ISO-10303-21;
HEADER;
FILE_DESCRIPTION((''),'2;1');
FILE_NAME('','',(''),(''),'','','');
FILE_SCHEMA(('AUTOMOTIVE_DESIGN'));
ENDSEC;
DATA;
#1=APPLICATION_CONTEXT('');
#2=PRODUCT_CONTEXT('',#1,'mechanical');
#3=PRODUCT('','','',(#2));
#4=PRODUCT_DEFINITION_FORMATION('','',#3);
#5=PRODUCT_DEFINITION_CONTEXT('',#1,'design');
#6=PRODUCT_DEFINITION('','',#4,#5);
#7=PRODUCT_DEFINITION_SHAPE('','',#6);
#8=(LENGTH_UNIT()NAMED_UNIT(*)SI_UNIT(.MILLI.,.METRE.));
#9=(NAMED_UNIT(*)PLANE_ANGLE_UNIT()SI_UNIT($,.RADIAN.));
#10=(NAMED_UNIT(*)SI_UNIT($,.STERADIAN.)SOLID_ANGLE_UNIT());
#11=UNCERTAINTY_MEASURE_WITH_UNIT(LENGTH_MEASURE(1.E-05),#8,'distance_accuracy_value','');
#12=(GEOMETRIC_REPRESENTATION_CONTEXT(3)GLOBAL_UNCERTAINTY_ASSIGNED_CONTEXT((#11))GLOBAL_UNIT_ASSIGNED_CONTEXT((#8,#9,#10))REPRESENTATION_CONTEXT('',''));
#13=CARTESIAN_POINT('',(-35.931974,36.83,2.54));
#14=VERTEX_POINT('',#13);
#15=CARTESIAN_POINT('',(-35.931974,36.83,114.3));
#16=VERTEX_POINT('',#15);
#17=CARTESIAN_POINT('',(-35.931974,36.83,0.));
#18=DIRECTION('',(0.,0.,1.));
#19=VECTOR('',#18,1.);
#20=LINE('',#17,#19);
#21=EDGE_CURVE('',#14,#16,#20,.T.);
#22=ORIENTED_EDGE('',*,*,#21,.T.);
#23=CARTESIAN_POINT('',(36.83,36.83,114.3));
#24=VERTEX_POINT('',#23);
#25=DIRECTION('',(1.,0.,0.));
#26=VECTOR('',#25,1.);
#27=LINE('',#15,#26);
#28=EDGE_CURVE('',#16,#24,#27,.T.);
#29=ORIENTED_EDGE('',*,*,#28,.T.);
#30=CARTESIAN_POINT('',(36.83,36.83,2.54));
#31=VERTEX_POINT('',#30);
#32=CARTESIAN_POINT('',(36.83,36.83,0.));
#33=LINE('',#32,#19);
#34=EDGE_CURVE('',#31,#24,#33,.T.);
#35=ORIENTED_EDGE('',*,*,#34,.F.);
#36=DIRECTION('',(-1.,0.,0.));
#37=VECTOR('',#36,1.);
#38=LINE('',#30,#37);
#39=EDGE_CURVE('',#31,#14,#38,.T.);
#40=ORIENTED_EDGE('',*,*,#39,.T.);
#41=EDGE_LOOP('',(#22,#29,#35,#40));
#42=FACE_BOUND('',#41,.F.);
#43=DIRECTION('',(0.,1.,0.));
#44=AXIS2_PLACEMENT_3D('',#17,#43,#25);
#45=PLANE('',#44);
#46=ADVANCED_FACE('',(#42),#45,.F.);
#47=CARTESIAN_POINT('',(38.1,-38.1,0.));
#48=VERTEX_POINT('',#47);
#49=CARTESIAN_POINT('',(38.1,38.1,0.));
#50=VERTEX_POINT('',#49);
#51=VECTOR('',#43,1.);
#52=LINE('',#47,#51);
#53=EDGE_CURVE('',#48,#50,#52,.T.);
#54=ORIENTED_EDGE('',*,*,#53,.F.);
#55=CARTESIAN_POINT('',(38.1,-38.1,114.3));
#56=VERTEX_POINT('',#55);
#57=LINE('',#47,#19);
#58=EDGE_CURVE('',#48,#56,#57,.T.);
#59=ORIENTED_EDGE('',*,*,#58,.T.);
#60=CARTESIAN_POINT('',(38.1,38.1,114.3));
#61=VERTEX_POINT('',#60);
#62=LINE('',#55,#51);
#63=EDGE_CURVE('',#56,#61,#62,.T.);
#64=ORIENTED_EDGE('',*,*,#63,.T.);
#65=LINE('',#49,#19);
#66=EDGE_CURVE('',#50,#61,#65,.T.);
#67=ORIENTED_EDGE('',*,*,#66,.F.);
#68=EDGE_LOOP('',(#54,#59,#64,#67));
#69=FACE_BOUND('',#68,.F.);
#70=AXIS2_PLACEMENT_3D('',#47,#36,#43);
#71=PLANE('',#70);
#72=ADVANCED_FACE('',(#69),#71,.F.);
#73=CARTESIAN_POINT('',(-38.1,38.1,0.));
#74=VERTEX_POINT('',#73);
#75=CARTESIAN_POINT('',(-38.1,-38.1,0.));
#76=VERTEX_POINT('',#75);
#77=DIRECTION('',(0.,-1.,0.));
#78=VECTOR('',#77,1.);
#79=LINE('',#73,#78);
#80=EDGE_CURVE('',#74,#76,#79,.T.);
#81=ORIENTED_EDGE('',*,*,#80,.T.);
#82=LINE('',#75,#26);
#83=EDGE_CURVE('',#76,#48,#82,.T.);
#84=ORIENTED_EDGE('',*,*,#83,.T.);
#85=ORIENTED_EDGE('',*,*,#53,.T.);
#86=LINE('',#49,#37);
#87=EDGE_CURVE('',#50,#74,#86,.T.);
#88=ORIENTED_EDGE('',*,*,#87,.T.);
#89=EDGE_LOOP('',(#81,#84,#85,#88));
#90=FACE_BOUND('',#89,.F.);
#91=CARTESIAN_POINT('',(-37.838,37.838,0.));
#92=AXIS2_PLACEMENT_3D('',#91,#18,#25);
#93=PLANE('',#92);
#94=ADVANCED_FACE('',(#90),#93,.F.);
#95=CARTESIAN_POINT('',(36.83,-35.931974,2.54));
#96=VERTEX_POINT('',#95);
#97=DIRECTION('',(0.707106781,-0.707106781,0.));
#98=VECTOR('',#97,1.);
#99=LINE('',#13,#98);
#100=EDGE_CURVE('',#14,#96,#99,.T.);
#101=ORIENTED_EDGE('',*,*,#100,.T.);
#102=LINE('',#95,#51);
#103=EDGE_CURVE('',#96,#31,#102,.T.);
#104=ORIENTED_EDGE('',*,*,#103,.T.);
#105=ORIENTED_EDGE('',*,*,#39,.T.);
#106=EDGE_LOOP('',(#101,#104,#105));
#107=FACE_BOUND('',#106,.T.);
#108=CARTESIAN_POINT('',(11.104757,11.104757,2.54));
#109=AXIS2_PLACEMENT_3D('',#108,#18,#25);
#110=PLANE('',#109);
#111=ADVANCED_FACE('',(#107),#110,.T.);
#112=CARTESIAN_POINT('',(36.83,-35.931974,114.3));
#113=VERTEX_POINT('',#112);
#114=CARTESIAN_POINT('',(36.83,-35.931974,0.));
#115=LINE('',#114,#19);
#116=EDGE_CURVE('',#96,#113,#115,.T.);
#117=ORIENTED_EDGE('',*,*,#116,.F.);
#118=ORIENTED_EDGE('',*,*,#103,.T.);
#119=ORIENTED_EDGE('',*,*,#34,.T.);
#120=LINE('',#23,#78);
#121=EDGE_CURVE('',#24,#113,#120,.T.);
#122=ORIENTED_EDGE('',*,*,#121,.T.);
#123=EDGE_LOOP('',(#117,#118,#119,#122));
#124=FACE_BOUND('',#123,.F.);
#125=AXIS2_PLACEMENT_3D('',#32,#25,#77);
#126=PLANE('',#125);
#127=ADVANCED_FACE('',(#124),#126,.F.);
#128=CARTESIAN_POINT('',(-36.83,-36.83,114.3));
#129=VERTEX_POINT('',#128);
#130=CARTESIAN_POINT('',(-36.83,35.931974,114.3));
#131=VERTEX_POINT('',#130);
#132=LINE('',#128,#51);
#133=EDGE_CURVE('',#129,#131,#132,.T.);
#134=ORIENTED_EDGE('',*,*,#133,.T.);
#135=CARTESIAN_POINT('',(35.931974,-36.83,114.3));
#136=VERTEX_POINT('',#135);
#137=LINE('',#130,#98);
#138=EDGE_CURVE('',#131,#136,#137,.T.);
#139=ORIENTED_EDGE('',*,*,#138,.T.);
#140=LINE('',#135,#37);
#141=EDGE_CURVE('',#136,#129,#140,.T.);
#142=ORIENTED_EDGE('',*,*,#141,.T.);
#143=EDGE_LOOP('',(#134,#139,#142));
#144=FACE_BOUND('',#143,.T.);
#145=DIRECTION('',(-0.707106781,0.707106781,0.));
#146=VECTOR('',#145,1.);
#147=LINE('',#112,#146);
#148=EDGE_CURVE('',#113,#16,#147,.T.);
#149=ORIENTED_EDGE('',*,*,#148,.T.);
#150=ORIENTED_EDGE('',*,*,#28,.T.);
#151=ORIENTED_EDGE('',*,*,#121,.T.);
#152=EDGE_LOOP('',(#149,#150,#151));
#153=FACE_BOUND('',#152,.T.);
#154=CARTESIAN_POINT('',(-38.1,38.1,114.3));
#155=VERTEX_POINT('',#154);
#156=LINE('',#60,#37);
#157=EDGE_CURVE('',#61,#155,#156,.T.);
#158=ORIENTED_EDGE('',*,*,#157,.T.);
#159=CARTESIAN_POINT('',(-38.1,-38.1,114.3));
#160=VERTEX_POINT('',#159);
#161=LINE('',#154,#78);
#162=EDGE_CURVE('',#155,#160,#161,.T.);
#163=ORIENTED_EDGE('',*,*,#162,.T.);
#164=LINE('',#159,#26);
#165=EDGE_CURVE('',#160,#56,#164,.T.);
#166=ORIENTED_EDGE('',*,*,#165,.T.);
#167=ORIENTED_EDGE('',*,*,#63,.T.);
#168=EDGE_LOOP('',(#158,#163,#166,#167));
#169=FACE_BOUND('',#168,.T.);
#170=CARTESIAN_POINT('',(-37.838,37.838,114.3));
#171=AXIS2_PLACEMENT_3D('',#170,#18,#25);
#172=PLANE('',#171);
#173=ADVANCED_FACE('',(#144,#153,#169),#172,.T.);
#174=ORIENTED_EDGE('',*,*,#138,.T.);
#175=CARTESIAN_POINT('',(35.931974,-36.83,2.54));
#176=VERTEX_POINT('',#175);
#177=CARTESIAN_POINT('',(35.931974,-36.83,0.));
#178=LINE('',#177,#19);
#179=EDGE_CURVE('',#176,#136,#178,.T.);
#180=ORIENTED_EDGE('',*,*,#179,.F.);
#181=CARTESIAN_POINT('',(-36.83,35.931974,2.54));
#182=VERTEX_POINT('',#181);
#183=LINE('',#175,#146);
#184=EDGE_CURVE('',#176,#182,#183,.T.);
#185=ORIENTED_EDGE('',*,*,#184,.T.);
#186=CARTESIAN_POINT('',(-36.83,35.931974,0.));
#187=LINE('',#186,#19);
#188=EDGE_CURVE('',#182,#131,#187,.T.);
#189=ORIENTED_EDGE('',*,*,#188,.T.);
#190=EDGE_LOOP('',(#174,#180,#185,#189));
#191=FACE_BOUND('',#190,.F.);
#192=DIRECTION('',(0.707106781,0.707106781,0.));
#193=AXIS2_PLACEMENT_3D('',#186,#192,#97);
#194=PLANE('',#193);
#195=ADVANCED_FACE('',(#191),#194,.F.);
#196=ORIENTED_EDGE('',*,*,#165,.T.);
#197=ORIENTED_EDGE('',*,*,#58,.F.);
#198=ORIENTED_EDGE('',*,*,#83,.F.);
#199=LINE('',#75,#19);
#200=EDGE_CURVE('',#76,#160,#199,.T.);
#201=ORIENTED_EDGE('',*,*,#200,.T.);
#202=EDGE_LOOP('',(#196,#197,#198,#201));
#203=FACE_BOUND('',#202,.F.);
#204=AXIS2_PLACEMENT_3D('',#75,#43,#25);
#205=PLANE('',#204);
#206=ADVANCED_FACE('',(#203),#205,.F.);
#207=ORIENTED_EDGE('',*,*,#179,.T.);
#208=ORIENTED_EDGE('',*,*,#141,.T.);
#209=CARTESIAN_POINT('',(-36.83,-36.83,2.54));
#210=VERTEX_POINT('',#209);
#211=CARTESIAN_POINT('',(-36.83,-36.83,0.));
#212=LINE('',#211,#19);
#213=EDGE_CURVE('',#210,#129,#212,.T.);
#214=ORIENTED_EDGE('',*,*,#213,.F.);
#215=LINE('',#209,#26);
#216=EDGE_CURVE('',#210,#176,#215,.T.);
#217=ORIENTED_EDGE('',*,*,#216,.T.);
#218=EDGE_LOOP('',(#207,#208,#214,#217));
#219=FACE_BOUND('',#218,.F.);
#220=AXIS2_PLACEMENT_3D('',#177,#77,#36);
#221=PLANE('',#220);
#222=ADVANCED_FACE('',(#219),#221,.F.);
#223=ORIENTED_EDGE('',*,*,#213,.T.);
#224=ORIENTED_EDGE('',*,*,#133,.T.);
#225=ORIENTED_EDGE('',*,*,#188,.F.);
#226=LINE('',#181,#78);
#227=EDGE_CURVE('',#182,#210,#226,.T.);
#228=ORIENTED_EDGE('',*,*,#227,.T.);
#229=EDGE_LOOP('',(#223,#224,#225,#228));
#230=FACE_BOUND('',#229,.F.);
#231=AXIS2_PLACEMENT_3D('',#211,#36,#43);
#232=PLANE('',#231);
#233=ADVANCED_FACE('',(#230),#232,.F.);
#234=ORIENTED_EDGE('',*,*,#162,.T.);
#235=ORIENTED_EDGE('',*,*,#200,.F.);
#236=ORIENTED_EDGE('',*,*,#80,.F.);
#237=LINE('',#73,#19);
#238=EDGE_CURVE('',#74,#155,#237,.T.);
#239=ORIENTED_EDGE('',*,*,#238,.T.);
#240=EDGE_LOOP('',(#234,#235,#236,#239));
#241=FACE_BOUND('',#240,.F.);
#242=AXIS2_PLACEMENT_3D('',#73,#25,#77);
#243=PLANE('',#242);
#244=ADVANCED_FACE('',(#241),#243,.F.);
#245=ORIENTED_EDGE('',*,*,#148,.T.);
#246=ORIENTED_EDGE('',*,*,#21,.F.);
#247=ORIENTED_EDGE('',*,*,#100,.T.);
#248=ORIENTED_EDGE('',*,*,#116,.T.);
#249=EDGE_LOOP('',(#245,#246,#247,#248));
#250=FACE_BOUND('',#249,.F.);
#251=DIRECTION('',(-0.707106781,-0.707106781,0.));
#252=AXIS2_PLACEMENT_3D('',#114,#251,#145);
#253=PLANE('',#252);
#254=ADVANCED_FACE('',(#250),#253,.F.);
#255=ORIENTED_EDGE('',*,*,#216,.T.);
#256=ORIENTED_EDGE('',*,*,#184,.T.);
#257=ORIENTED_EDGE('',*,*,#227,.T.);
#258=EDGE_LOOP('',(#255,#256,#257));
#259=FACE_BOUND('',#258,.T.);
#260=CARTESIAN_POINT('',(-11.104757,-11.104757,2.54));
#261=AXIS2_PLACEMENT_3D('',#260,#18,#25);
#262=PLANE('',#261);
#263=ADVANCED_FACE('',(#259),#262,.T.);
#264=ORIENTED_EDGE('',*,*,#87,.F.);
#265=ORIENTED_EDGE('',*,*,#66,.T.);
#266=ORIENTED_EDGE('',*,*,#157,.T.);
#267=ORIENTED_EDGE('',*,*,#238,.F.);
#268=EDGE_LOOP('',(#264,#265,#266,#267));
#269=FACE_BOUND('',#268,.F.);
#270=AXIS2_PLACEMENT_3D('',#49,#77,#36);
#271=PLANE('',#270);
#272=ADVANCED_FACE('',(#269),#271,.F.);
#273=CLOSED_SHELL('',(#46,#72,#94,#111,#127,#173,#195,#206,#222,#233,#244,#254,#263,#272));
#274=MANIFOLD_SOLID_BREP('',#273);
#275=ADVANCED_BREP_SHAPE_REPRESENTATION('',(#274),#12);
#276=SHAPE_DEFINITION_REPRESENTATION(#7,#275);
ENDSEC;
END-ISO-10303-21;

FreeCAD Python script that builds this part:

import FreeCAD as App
import Part
import Sketcher

V = App.Vector
Q = App.Units.Quantity


def add_polygon(sketch, points):
    """Adds a closed chain of lines whose ends are joined by coincident constraints."""
    first, n = sketch.GeometryCount, len(points)
    for a, b in zip(points, points[1:] + points[:1]):
        sketch.addGeometry(Part.LineSegment(App.Vector(*a, 0), App.Vector(*b, 0)), False)
    for i in range(n):
        sketch.addConstraint(Sketcher.Constraint("Coincident", first + i, 2, first + (i + 1) % n, 1))

doc = App.newDocument("Part")
params = doc.addObject("Spreadsheet::Sheet", "Params")
for row, (alias, value) in enumerate([
    ("pad1_length", "0.1 in"),
    ("pad2_length", "0.1 in"),
    ("sketch3_width", "3 in"),
    ("pad3_length", "4.5 in"),
], start=1):
    params.set(f"A{row}", alias)
    params.set(f"B{row}", "=" + value)
    params.setAlias(f"B{row}", alias)

body = doc.addObject("PartDesign::Body", "Body")

# Sketch on XY plane
sketch1 = doc.addObject("Sketcher::SketchObject", "Sketch")
body.addObject(sketch1)
sketch1.AttachmentSupport = (doc.XY_Plane, [""])
sketch1.MapMode = "FlatFace"
add_polygon(sketch1, [(35.931974, -36.83), (-36.83, 35.931974), (-36.83, -36.83)])  # lines 0-2
sketch1.addConstraint([
    Sketcher.Constraint("Vertical", 1),
    Sketcher.Constraint("Horizontal", 2),
    Sketcher.Constraint("Equal", 2, 1),
    Sketcher.Constraint("DistanceX", 0, 2, -1, 1, Q("1.45 in")),
    Sketcher.Constraint("DistanceY", 1, 2, -1, 1, Q("1.45 in")),
    Sketcher.Constraint("Distance", 0, 102.900971),
])
pad1 = doc.addObject("PartDesign::Pad", "Pad")
body.addObject(pad1)
pad1.Profile = sketch1
pad1.setExpression("Length", "Params.pad1_length")
body2 = doc.addObject("PartDesign::Body", "Body001")

# Sketch on XY plane
sketch2 = doc.addObject("Sketcher::SketchObject", "Sketch001")
body2.addObject(sketch2)
sketch2.AttachmentSupport = (doc.getObject("XY_Plane001"), [""])
sketch2.MapMode = "FlatFace"
add_polygon(sketch2, [(36.83, 36.83), (-35.931974, 36.83), (36.83, -35.931974)])  # lines 0-2
sketch2.addConstraint([
    Sketcher.Constraint("Horizontal", 0),
    Sketcher.Constraint("Vertical", 2),
    Sketcher.Constraint("Equal", 0, 2),
    Sketcher.Constraint("DistanceY", -1, 1, 0, 2, Q("1.45 in")),
    Sketcher.Constraint("DistanceX", -1, 1, 1, 2, Q("1.45 in")),
    Sketcher.Constraint("Distance", 1, 102.900971),
])
pad2 = doc.addObject("PartDesign::Pad", "Pad001")
body2.addObject(pad2)
pad2.Profile = sketch2
pad2.setExpression("Length", "Params.pad2_length")
body.AllowCompound = True
doc.recompute()

boolean = doc.addObject("PartDesign::Boolean", "Boolean")
body.addObject(boolean)
boolean.Type = "Fuse"
boolean.addObjects([body2])

# Sketch on XY plane
sketch3 = doc.addObject("Sketcher::SketchObject", "Sketch002")
body.addObject(sketch3)
sketch3.AttachmentSupport = (doc.XY_Plane, [""])
sketch3.MapMode = "FlatFace"
add_polygon(sketch3, [(-38.1, -38.1), (38.1, -38.1), (38.1, 38.1), (-38.1, 38.1)])  # lines 0-3
add_polygon(sketch3, [(-36.83, 35.931974), (35.931974, -36.83), (-36.83, -36.83)])  # lines 4-6
add_polygon(sketch3, [(36.83, 36.83), (36.83, -35.931974), (-35.931974, 36.83)])  # lines 7-9
sketch3.addConstraint([
    Sketcher.Constraint("Horizontal", 0),
    Sketcher.Constraint("Vertical", 1),
    Sketcher.Constraint("Horizontal", 2),
    Sketcher.Constraint("Vertical", 3),
    Sketcher.Constraint("Horizontal", 5),
    Sketcher.Constraint("Vertical", 6),
    Sketcher.Constraint("Vertical", 7),
    Sketcher.Constraint("Horizontal", 9),
    Sketcher.Constraint("Symmetric", 0, 2, 2, 2, -1, 1),
    Sketcher.Constraint("Symmetric", 6, 2, 7, 2, -1, 1),
    Sketcher.Constraint("Symmetric", 4, 2, 8, 2, -1, 1),
    Sketcher.Constraint("Equal", 2, 1),
    Sketcher.Constraint("Equal", 9, 6),
    Sketcher.Constraint("DistanceX", 0, 1, 0, 2, Q("3 in")),
    Sketcher.Constraint("DistanceX", 5, 2, 7, 2, Q("2.9 in")),
    Sketcher.Constraint("DistanceY", 5, 2, 8, 2, Q("2.9 in")),
    Sketcher.Constraint("Distance", 4, 102.900971),
])
sketch3.setExpression("Constraints[23]", "Params.sketch3_width")
pad3 = doc.addObject("PartDesign::Pad", "Pad002")
body.addObject(pad3)
pad3.Profile = sketch3
pad3.setExpression("Length", "Params.pad3_length")

doc.recompute()
